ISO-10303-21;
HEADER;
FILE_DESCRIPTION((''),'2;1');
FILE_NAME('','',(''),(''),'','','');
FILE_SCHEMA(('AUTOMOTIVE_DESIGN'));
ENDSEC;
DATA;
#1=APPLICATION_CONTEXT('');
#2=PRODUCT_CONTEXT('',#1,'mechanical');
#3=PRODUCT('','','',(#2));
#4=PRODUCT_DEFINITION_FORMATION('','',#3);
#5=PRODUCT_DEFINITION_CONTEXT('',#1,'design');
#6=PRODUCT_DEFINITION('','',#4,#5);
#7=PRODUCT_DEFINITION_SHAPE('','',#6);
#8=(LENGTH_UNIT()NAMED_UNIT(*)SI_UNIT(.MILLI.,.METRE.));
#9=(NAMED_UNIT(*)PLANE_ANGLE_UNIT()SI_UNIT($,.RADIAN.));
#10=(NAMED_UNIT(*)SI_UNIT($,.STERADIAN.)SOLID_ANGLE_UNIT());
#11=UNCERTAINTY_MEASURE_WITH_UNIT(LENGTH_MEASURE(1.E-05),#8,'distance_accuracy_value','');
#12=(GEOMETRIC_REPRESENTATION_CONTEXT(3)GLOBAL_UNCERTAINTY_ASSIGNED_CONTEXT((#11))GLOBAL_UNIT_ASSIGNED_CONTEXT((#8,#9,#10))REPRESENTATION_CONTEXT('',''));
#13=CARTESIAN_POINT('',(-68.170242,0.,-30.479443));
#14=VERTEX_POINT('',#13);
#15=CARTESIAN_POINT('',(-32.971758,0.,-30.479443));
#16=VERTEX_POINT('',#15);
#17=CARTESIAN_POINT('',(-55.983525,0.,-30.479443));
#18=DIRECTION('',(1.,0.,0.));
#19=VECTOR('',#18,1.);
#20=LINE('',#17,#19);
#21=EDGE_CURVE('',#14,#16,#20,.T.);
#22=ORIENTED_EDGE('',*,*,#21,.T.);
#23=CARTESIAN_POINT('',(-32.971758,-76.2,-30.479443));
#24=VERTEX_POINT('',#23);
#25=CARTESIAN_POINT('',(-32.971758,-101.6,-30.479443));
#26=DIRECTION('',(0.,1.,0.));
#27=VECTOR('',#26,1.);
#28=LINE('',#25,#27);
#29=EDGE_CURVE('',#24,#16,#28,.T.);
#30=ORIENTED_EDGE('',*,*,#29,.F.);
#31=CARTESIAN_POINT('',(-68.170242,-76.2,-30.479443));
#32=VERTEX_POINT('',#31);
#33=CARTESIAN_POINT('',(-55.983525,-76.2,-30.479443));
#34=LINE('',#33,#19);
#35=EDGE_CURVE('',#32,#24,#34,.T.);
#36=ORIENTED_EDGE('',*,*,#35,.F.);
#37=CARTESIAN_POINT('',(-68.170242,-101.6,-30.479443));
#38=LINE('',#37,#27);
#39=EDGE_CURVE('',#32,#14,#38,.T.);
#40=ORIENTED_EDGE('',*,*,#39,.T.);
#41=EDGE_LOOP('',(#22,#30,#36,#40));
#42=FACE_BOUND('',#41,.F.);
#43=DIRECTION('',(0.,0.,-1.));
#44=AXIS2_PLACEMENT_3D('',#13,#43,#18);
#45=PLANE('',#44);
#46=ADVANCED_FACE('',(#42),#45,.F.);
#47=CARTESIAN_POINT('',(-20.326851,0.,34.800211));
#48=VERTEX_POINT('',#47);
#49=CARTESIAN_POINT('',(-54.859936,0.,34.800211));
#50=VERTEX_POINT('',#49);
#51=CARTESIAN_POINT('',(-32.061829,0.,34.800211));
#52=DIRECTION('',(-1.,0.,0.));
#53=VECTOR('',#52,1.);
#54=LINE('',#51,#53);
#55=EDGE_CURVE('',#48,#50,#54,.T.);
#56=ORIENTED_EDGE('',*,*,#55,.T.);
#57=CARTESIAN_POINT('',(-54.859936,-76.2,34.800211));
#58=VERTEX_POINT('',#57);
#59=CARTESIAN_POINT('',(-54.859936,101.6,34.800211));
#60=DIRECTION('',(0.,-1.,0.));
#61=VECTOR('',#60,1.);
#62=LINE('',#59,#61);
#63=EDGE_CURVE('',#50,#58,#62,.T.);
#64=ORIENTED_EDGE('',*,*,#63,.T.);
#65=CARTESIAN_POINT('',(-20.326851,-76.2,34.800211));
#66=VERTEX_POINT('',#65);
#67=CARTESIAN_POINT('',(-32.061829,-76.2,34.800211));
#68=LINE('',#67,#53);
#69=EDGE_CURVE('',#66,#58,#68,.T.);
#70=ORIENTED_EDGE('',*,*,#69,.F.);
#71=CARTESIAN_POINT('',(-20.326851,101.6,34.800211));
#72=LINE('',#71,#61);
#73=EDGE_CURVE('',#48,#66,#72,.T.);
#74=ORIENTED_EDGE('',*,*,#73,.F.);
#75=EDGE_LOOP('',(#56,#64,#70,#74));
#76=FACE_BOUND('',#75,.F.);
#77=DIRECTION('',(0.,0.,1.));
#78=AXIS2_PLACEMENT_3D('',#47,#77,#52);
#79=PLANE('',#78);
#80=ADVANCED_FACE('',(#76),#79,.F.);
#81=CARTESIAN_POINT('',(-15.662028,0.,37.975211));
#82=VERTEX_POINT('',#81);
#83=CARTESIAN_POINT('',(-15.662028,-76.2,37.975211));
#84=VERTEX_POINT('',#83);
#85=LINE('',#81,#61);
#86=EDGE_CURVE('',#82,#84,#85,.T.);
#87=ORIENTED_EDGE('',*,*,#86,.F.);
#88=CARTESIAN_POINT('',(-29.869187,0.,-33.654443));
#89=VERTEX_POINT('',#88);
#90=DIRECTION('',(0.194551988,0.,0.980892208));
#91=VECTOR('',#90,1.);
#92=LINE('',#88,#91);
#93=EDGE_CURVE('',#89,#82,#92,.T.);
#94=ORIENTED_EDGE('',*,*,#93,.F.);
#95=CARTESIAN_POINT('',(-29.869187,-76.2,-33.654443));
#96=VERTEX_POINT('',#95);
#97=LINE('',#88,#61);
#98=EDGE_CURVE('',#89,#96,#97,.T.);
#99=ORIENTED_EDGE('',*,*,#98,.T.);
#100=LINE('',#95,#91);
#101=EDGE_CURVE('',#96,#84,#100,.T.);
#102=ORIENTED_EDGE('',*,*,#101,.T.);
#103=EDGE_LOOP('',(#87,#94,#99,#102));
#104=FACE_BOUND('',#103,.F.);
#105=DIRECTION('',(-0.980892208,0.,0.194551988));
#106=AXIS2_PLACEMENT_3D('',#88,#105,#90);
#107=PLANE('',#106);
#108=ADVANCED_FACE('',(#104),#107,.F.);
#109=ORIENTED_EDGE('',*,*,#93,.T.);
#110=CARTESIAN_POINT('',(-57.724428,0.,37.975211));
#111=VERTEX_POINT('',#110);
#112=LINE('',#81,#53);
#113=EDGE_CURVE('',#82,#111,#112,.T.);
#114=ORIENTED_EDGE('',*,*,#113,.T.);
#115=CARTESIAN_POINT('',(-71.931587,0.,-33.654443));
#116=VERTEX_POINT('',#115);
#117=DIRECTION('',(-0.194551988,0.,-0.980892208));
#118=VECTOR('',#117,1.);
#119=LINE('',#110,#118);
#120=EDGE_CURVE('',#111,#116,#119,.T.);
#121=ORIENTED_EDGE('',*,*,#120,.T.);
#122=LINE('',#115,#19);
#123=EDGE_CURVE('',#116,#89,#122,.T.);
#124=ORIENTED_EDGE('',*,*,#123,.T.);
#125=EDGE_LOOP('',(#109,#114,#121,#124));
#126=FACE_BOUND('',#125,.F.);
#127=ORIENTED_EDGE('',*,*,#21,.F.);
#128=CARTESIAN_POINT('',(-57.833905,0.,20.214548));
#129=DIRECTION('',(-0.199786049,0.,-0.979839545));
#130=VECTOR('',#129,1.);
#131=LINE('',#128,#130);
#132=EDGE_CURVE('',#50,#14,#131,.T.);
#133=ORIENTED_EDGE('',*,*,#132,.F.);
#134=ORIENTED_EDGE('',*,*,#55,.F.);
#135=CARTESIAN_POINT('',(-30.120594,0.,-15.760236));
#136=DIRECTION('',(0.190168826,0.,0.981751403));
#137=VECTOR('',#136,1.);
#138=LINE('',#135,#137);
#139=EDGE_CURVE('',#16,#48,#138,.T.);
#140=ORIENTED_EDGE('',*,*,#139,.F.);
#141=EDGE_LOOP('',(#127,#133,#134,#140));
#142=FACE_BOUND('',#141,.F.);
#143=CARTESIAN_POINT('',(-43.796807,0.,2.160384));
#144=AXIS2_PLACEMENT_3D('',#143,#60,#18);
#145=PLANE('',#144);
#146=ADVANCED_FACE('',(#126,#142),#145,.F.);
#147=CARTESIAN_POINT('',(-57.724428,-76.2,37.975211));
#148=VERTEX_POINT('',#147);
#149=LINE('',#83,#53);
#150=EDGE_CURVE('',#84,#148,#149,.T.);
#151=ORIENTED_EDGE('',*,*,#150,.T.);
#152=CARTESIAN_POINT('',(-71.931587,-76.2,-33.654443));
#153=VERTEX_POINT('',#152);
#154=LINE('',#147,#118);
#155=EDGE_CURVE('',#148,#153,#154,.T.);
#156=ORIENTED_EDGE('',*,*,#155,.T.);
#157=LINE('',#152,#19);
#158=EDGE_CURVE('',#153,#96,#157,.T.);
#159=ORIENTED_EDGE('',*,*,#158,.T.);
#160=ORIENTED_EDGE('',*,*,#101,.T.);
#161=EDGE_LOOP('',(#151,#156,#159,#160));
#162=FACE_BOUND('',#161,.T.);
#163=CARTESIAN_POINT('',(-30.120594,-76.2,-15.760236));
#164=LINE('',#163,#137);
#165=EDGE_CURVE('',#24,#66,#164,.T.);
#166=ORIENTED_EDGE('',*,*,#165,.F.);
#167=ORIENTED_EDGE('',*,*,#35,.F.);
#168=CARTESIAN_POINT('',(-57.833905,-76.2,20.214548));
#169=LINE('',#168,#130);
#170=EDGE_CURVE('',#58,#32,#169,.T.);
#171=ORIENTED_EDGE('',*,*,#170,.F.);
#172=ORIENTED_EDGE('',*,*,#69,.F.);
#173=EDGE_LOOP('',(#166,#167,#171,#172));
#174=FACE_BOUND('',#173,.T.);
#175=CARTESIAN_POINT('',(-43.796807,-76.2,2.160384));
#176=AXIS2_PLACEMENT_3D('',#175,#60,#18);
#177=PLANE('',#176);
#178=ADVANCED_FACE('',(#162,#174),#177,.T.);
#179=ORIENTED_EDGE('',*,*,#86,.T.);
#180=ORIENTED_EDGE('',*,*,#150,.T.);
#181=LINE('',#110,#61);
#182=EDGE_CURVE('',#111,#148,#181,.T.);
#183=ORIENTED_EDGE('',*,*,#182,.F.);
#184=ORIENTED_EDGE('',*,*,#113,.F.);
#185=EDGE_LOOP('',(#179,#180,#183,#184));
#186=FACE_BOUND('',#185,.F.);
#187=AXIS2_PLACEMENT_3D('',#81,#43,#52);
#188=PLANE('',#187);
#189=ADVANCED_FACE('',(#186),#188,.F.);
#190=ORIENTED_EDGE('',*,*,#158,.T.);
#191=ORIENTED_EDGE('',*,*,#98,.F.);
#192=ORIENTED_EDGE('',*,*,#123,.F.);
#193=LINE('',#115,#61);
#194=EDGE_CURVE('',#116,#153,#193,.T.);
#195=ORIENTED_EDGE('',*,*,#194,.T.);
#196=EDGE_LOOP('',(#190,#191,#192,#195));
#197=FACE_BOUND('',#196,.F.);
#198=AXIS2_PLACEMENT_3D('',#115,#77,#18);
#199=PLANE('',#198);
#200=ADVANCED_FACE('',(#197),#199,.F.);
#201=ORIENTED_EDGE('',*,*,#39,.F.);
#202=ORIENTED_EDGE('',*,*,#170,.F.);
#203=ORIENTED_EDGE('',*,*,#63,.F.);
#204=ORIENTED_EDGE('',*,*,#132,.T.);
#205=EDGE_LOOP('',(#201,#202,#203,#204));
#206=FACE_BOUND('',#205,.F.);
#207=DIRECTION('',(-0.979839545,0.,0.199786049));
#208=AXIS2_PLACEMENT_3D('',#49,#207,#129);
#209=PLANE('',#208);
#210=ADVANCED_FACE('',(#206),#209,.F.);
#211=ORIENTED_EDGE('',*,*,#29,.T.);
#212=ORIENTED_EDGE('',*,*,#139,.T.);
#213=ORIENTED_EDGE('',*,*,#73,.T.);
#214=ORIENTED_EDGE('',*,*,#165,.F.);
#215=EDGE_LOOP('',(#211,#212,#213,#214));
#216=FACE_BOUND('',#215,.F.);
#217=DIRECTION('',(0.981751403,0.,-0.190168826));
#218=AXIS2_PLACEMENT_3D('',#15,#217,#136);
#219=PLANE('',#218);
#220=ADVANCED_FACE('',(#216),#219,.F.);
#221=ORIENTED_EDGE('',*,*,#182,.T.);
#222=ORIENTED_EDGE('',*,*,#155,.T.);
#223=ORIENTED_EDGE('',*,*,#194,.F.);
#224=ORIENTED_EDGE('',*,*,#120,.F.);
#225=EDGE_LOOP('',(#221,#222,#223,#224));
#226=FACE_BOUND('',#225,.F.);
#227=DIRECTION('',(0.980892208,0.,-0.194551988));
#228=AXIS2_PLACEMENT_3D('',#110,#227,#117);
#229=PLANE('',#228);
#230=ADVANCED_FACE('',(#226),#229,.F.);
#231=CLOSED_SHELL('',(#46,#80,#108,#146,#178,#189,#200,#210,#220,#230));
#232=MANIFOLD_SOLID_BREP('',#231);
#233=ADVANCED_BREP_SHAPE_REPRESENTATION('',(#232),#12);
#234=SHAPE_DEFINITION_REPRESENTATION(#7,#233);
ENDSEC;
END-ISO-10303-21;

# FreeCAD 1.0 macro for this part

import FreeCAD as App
import Part
import Sketcher
from FreeCAD import Vector
Q = App.Units.Quantity


def add_polygon(sketch, points):
    """Adds a closed chain of lines whose ends are joined by coincident constraints."""
    first, n = sketch.GeometryCount, len(points)
    for a, b in zip(points, points[1:] + points[:1]):
        sketch.addGeometry(Part.LineSegment(App.Vector(*a, 0), App.Vector(*b, 0)), False)
    for i in range(n):
        sketch.addConstraint(Sketcher.Constraint("Coincident", first + i, 2, first + (i + 1) % n, 1))

doc = App.newDocument("Part")
body = doc.addObject("PartDesign::Body", "Body")

sketch1 = body.newObject("Sketcher::SketchObject", "Sketch")
sketch1.AttachmentSupport = (doc.getObject("XZ_Plane"), [""])
sketch1.MapMode = "FlatFace"
add_polygon(sketch1, [(-16, 38), (-58, 38), (-72, -34), (-30, -34)])
sketch1.addConstraint([
    Sketcher.Constraint("Horizontal", 0),
    Sketcher.Constraint("Horizontal", 2),
    Sketcher.Constraint("Parallel", 1, 3),
    Sketcher.Constraint("DistanceX", 0, 2, 0, 1, Q("1.656 in")),
    Sketcher.Constraint("Distance", 1, Q("2.875 in")),
    Sketcher.Constraint("DistanceX", 0, 2, -1, 1, Q("57.724428 mm")),
    Sketcher.Constraint("DistanceY", -1, 1, 0, 2, Q("37.975211 mm")),
    Sketcher.Constraint("DistanceX", 1, 2, 0, 2, Q("14.207159 mm")),
])
pad1 = body.newObject("PartDesign::Pad", "Pad")
pad1.Profile = sketch1
pad1.Length = Q("3 in")

sketch2 = body.newObject("Sketcher::SketchObject", "Sketch001")
sketch2.AttachmentSupport = (doc.getObject("XZ_Plane"), [""])
sketch2.MapMode = "FlatFace"
add_polygon(sketch2, [(-32.971758, -30.479443), (-20.326851, 34.800211), (-54.859936, 34.800211), (-68.170242, -30.479443)])
sketch2.addConstraint([
    Sketcher.Constraint("Horizontal", 1),
    Sketcher.Constraint("Horizontal", 3),
    Sketcher.Constraint("Distance", 2, Q("66.6228 mm")),
    Sketcher.Constraint("Distance", 0, Q("66.493059 mm")),
    Sketcher.Constraint("DistanceX", 1, 2, 1, 1, Q("34.533085 mm")),
    Sketcher.Constraint("DistanceX", 3, 1, 3, 2, Q("35.198484 mm")),
    Sketcher.Constraint("DistanceX", 0, 2, -1, 1, Q("20.326851 mm")),
    Sketcher.Constraint("DistanceY", -1, 1, 0, 2, Q("34.800211 mm")),
])
pocket1 = body.newObject("PartDesign::Pocket", "Pocket")
pocket1.Profile = sketch2
pocket1.Length = Q("8 in")
pocket1.Midplane = True

doc.recompute()
